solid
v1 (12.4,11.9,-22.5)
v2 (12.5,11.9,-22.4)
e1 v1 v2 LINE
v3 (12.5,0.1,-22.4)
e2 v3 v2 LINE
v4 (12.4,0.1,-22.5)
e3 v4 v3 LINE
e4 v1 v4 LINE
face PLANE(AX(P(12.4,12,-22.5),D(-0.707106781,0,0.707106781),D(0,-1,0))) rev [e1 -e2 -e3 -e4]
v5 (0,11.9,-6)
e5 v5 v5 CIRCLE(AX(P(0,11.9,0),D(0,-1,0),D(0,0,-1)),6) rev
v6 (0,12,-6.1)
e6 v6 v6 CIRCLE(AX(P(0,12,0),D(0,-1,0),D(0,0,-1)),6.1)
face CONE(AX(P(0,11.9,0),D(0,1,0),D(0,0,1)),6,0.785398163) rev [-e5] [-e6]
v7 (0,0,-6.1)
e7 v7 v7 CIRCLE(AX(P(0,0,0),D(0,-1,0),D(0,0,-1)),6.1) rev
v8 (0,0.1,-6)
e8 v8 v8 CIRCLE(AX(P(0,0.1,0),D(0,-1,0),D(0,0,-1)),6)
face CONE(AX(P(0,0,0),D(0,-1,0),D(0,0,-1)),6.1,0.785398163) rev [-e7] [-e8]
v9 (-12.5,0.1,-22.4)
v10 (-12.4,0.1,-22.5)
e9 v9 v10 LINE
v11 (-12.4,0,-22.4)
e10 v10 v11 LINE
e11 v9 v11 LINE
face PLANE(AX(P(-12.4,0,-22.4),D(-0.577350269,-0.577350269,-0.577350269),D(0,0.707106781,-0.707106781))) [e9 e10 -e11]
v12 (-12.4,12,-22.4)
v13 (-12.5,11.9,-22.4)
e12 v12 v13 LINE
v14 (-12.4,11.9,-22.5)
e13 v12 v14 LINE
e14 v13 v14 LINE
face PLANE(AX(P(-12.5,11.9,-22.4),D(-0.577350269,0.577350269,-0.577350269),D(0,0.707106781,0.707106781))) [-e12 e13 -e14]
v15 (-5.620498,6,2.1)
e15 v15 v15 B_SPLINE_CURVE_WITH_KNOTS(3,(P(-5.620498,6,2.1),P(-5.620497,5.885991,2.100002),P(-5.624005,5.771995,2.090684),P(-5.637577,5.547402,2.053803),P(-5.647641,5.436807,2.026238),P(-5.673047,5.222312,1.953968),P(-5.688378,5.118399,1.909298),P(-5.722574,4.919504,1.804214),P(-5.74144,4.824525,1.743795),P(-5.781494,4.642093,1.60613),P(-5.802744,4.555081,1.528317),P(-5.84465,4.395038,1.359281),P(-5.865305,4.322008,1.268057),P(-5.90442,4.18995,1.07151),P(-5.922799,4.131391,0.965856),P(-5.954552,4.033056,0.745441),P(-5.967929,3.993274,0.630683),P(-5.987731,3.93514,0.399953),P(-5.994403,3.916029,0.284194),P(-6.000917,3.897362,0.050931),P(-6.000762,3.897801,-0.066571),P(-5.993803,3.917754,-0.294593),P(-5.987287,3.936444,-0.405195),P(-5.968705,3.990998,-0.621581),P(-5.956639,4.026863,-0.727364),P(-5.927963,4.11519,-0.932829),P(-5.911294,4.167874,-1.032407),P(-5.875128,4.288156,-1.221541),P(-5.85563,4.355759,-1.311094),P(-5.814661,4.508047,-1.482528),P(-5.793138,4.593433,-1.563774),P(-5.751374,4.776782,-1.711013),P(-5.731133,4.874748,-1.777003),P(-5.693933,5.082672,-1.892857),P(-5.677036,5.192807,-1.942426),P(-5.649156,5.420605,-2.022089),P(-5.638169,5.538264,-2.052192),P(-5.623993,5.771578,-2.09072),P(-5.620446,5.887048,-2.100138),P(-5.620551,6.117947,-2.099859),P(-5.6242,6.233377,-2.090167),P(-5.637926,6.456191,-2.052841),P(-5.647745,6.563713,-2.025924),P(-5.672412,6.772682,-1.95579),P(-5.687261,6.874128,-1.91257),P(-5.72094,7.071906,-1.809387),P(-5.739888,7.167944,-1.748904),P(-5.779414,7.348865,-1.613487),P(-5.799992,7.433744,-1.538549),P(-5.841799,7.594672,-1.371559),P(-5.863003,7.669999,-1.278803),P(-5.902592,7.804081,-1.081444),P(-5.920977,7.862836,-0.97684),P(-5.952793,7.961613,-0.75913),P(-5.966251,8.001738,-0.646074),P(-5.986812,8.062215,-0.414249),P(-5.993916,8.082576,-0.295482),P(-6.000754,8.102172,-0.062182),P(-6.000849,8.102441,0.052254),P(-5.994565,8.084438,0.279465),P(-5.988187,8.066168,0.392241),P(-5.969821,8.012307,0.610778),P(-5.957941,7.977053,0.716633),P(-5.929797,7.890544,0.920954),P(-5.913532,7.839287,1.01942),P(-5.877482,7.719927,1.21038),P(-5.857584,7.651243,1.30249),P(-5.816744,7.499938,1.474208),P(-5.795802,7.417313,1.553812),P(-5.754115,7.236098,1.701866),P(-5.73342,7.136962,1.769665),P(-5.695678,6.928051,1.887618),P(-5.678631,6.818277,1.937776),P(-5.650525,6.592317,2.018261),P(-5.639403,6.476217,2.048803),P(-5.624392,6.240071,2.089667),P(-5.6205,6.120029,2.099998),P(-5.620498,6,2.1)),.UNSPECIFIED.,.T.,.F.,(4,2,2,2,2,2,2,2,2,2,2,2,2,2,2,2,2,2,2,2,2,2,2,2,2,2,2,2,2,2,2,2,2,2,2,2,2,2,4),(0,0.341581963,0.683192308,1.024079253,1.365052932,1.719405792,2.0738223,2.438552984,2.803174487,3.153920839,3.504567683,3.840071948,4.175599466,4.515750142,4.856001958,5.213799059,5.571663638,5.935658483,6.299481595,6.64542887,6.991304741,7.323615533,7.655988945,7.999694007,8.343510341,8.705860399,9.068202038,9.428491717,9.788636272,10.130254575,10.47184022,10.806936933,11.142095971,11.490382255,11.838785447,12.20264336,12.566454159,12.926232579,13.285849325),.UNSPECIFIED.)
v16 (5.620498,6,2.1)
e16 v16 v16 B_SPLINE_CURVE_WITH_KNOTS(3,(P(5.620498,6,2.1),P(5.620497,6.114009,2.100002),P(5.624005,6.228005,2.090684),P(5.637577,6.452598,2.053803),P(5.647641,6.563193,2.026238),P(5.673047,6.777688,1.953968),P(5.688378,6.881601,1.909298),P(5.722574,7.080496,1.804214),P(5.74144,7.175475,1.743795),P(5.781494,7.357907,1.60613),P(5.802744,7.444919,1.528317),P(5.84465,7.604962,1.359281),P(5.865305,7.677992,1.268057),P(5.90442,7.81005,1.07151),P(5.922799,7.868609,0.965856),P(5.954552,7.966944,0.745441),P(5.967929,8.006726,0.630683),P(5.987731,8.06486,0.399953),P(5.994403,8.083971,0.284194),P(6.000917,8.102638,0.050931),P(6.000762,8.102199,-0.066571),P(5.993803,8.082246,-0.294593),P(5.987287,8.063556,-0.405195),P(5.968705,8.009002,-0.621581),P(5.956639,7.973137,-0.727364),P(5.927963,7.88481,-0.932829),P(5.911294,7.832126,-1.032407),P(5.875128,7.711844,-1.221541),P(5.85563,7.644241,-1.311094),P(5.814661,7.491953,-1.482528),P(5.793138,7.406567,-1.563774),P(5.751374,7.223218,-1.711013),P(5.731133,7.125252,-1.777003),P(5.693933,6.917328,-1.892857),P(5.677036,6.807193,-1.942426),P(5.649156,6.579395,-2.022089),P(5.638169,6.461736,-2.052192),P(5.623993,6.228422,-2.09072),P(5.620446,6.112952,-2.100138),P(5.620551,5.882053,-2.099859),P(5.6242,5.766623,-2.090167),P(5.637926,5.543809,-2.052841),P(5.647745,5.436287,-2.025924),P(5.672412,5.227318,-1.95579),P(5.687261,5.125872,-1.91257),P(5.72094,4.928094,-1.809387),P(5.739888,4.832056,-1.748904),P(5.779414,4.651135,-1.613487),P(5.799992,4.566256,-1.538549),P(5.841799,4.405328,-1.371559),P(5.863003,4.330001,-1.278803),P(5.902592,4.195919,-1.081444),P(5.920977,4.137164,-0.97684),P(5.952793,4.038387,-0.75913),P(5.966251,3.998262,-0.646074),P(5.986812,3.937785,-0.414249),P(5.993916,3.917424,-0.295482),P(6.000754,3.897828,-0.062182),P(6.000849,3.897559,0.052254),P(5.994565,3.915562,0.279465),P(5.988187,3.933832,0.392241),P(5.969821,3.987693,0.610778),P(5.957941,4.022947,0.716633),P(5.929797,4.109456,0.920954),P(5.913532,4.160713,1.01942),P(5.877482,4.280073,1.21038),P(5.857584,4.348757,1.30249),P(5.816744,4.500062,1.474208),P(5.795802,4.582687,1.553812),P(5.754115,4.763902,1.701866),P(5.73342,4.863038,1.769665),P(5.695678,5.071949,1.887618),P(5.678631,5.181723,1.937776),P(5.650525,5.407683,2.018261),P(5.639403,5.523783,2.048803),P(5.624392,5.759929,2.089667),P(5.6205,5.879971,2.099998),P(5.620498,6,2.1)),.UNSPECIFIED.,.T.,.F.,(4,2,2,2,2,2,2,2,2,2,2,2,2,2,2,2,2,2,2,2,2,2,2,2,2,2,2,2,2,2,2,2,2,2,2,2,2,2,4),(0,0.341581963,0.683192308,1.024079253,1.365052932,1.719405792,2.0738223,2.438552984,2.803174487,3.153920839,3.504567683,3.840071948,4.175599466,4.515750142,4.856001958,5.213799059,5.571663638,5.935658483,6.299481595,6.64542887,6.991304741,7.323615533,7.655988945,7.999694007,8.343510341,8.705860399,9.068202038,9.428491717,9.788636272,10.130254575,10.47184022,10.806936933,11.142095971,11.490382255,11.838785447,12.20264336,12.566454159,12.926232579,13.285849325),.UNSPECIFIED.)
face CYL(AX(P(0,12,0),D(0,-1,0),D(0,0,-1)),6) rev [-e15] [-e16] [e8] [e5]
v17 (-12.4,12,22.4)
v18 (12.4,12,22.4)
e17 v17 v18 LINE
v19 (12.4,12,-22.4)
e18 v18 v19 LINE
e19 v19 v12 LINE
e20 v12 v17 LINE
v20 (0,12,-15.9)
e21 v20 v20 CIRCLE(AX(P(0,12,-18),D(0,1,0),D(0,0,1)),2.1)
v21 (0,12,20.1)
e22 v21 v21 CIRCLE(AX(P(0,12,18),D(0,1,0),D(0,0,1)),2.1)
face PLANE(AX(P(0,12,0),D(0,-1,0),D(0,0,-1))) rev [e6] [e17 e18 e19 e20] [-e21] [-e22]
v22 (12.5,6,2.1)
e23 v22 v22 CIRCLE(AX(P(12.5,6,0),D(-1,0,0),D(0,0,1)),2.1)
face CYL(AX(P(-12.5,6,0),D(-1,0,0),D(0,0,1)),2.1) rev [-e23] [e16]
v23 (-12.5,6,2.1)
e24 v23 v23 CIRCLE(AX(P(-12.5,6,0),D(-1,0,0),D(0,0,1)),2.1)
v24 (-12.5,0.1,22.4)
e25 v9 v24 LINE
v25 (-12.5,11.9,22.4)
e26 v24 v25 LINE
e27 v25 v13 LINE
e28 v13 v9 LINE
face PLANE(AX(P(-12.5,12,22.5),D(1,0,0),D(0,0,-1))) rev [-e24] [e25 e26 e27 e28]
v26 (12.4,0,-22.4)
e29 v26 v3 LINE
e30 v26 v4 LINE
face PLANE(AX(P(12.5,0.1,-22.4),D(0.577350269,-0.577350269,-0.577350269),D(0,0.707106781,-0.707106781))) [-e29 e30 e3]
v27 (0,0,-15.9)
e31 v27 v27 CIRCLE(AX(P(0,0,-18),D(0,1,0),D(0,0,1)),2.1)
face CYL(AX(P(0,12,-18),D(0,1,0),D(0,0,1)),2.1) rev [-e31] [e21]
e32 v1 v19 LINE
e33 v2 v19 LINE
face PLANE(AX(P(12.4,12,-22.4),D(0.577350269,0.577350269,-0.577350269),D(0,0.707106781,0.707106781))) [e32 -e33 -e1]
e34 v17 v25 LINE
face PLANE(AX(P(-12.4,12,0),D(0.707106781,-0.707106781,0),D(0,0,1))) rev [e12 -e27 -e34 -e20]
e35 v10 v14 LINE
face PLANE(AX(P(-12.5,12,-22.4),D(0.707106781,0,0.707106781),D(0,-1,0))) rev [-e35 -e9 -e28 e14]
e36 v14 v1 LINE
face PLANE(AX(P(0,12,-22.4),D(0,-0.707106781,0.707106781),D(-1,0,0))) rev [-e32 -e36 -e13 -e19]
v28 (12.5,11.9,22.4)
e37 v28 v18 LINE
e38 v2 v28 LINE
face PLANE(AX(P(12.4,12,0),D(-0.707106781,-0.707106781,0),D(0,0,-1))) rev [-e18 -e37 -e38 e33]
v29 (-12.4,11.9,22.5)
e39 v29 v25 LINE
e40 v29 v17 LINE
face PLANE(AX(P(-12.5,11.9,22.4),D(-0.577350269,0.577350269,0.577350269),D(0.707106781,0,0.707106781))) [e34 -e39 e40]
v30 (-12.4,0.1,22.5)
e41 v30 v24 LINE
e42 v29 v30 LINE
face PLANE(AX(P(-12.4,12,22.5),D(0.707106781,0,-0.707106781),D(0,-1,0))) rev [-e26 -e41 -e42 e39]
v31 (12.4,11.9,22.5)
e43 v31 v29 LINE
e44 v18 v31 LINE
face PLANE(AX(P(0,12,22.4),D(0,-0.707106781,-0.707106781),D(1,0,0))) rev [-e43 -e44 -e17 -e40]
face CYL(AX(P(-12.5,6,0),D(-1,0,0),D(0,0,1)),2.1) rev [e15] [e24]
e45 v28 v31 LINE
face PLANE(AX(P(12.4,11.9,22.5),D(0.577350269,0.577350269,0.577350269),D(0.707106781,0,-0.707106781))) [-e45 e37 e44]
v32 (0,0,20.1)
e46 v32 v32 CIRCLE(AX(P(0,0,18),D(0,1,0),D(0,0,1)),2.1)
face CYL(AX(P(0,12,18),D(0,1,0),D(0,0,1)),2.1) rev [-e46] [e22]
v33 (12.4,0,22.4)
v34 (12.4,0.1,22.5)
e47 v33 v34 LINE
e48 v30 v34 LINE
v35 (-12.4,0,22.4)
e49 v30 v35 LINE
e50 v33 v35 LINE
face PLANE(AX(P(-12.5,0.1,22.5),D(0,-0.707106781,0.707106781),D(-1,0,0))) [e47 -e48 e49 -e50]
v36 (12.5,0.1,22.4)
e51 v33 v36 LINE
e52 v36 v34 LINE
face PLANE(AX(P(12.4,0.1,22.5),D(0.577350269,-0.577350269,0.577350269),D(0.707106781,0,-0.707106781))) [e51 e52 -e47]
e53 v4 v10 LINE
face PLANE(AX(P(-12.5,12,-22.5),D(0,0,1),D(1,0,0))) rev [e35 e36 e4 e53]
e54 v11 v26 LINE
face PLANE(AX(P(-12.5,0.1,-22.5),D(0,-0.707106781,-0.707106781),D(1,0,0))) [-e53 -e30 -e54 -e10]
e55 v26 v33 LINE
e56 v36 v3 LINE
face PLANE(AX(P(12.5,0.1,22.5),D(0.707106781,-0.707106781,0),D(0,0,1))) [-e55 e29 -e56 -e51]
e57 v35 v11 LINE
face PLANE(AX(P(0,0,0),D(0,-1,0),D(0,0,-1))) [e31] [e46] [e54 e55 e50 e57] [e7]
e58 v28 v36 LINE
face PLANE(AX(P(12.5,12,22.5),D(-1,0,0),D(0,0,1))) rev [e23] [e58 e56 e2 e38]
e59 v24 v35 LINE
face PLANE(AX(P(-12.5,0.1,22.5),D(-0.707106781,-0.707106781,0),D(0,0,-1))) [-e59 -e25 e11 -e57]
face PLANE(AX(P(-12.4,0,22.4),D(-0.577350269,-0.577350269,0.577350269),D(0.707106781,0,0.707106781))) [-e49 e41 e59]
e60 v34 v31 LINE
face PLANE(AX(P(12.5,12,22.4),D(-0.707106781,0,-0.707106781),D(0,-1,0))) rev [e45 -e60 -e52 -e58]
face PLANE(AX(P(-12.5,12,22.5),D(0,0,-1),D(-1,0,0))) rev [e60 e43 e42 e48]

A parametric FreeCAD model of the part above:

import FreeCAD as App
import Part
import Sketcher
Q = App.Units.Quantity


def edges_at(feature, points):
    """Names of the edges that pass closest to the given points."""
    edges = feature.Shape.Edges
    near = lambda p: min(range(len(edges)), key=lambda i: edges[i].distToShape(Part.Vertex(*p))[0])
    return sorted({f"Edge{near(p) + 1}" for p in points})


def add_polygon(sketch, points):
    """Adds a closed chain of lines whose ends are joined by coincident constraints."""
    first, n = sketch.GeometryCount, len(points)
    for a, b in zip(points, points[1:] + points[:1]):
        sketch.addGeometry(Part.LineSegment(App.Vector(*a, 0), App.Vector(*b, 0)), False)
    for i in range(n):
        sketch.addConstraint(Sketcher.Constraint("Coincident", first + i, 2, first + (i + 1) % n, 1))

doc = App.newDocument("Part")
params = doc.addObject("Spreadsheet::Sheet", "Params")
for row, (alias, value) in enumerate([
    ("sketch1_diameter", "12 mm"),
    ("sketch1_width", "25 mm"),
    ("sketch1_height", "45 mm"),
    ("pad1_length", "12 mm"),
    ("sketch2_diameter", "4.2 mm"),
    ("hole_diameter", "4.2 mm"),
    ("sketch3_diameter", "4.2 mm"),
    ("hole2_diameter", "4.2 mm"),
    ("chamfer_size", "0.1 mm"),
], start=1):
    params.set(f"A{row}", alias)
    params.set(f"B{row}", "=" + value)
    params.setAlias(f"B{row}", alias)

body = doc.addObject("PartDesign::Body", "Body")

# Sketch on XZ plane
sketch1 = doc.addObject("Sketcher::SketchObject", "Sketch")
body.addObject(sketch1)
sketch1.AttachmentSupport = (doc.XZ_Plane, [""])
sketch1.MapMode = "FlatFace"
add_polygon(sketch1, [(-12, -22), (-12, 22), (12, 22), (12, -22)])  # lines 0-3
sketch1.addGeometry(Part.Circle(App.Vector(0, 0, 0), App.Vector(0, 0, 1), 6), False)  # 4
sketch1.addConstraint([
    Sketcher.Constraint("Vertical", 0),
    Sketcher.Constraint("Horizontal", 1),
    Sketcher.Constraint("Vertical", 2),
    Sketcher.Constraint("Horizontal", 3),
    Sketcher.Constraint("Coincident", 4, 3, -1, 1),
    Sketcher.Constraint("Symmetric", 0, 2, 2, 2, -1, 1),
    Sketcher.Constraint("Diameter", 4, Q("12 mm")),
    Sketcher.Constraint("DistanceX", 1, 1, 1, 2, Q("25 mm")),
    Sketcher.Constraint("DistanceY", 0, 1, 0, 2, Q("45 mm")),
])
sketch1.setExpression("Constraints[10]", "Params.sketch1_diameter")
sketch1.setExpression("Constraints[11]", "Params.sketch1_width")
sketch1.setExpression("Constraints[12]", "Params.sketch1_height")
pad1 = doc.addObject("PartDesign::Pad", "Pad")
body.addObject(pad1)
pad1.Profile = sketch1
pad1.setExpression("Length", "Params.pad1_length")
pad1.Reversed = True

# Sketch on XZ plane
sketch2 = doc.addObject("Sketcher::SketchObject", "Sketch001")
body.addObject(sketch2)
sketch2.AttachmentSupport = (doc.XZ_Plane, [""])
sketch2.MapMode = "FlatFace"
sketch2.AttachmentOffset = App.Placement(App.Vector(0, 0, -12), App.Rotation())
sketch2.addGeometry([
    Part.Circle(App.Vector(0, -18, 0), App.Vector(0, 0, 1), 2.1),
    Part.Circle(App.Vector(0, 18, 0), App.Vector(0, 0, 1), 2.1),
], False)
sketch2.addConstraint([
    Sketcher.Constraint("Equal", 0, 1),
    Sketcher.Constraint("Symmetric", 0, 3, 1, 3, -1, 1),
    Sketcher.Constraint("PointOnObject", 0, 3, -2),
    Sketcher.Constraint("Diameter", 0, Q("4.2 mm")),
    Sketcher.Constraint("DistanceY", 0, 3, -1, 1, Q("18 mm")),
])
sketch2.setExpression("Constraints[3]", "Params.sketch2_diameter")
doc.recompute()
hole = doc.addObject("PartDesign::Hole", "Hole")
body.addObject(hole)
hole.Profile = sketch2
hole.ThreadType = "None"
hole.setExpression("Diameter", "Params.hole_diameter")
hole.DepthType = "ThroughAll"
hole.Reversed = True

# Sketch on YZ plane
sketch3 = doc.addObject("Sketcher::SketchObject", "Sketch002")
body.addObject(sketch3)
sketch3.AttachmentSupport = (doc.YZ_Plane, [""])
sketch3.MapMode = "FlatFace"
sketch3.AttachmentOffset = App.Placement(App.Vector(0, 0, -12.5), App.Rotation())
sketch3.addGeometry(Part.Circle(App.Vector(6, 0, 0), App.Vector(0, 0, 1), 2.1), False)
sketch3.addConstraint([
    Sketcher.Constraint("PointOnObject", 0, 3, -1),
    Sketcher.Constraint("Diameter", 0, Q("4.2 mm")),
    Sketcher.Constraint("DistanceX", -1, 1, 0, 3, Q("6 mm")),
])
sketch3.setExpression("Constraints[1]", "Params.sketch3_diameter")
doc.recompute()
hole2 = doc.addObject("PartDesign::Hole", "Hole001")
body.addObject(hole2)
hole2.Profile = sketch3
hole2.ThreadType = "None"
hole2.setExpression("Diameter", "Params.hole2_diameter")
hole2.DepthType = "ThroughAll"
hole2.Reversed = True
doc.recompute()

chamfer = doc.addObject("PartDesign::Chamfer", "Chamfer")
body.addObject(chamfer)
chamfer.Base = (hole2, edges_at(hole2, [
    (-6, 0, 0),
    (-6, 12, 0),
    (-12.5, 12, 0),
    (0, 12, 22.5),
    (12.5, 12, 0),
    (0, 0, 22.5),
    (-12.5, 0, 0),
    (0, 0, -22.5),
    (12.5, 0, 0),
    (12.5, 6, 22.5),
    (-12.5, 6, 22.5),
    (-12.5, 6, -22.5),
    (12.5, 6, -22.5),
    (0, 12, -22.5),
]))
chamfer.setExpression("Size", "Params.chamfer_size")

doc.recompute()
